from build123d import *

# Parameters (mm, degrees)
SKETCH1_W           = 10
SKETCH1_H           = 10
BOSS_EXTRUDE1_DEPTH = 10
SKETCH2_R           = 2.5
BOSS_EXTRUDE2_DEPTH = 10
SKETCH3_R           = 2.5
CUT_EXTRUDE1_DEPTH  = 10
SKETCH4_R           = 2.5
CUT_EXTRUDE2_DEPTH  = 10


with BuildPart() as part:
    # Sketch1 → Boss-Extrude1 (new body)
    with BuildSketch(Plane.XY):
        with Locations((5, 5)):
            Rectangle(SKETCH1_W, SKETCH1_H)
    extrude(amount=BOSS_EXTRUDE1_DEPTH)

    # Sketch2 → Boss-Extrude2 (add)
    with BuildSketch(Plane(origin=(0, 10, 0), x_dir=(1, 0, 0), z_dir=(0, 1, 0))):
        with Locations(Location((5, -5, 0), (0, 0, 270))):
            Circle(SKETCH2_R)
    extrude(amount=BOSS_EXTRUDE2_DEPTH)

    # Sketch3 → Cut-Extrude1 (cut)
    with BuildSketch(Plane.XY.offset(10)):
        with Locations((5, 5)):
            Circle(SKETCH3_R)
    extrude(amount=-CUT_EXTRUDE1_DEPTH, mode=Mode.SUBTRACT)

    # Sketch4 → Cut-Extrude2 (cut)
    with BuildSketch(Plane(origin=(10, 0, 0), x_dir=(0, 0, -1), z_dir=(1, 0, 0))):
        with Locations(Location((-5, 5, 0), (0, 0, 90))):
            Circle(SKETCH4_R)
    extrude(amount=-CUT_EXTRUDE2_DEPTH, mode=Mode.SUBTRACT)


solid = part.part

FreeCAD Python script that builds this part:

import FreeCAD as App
import Part
import Sketcher


def add_polygon(sketch, points):
    """Adds a closed chain of lines whose ends are joined by coincident constraints."""
    first, n = sketch.GeometryCount, len(points)
    for a, b in zip(points, points[1:] + points[:1]):
        sketch.addGeometry(Part.LineSegment(App.Vector(*a, 0), App.Vector(*b, 0)), False)
    for i in range(n):
        sketch.addConstraint(Sketcher.Constraint("Coincident", first + i, 2, first + (i + 1) % n, 1))

doc = App.newDocument("Part")
body = doc.addObject("PartDesign::Body", "Body")

# Sketch on XY plane
sketch1 = body.newObject("Sketcher::SketchObject", "Sketch")
sketch1.AttachmentSupport = (doc.getObject("XY_Plane"), [""])
sketch1.MapMode = "FlatFace"
add_polygon(sketch1, [(0, 10), (0, 0), (10, 0), (10, 10)])  # lines 0-3
sketch1.addConstraint([
    Sketcher.Constraint("Vertical", 0),
    Sketcher.Constraint("Horizontal", 1),
    Sketcher.Constraint("Vertical", 2),
    Sketcher.Constraint("Horizontal", 3),
    Sketcher.Constraint("Coincident", 0, 2, -1, 1),
    Sketcher.Constraint("Equal", 3, 0),
    Sketcher.Constraint("DistanceX", 1, 1, 1, 2, 10.0),
])
pad1 = body.newObject("PartDesign::Pad", "Pad")
pad1.Profile = sketch1
pad1.Length = 10

# Sketch on XZ plane
sketch2 = body.newObject("Sketcher::SketchObject", "Sketch001")
sketch2.AttachmentSupport = (doc.getObject("XZ_Plane"), [""])
sketch2.MapMode = "FlatFace"
sketch2.AttachmentOffset = App.Placement(App.Vector(0, 0, -10), App.Rotation())
sketch2.addGeometry(Part.Circle(App.Vector(5, 5, 0), App.Vector(0, 0, 1), 2.5), False)
sketch2.addConstraint([
    Sketcher.Constraint("Diameter", 0, 5.0),
    Sketcher.Constraint("DistanceX", -1, 1, 0, 3, 5.0),
    Sketcher.Constraint("DistanceY", -1, 1, 0, 3, 5.0),
])
pad2 = body.newObject("PartDesign::Pad", "Pad001")
pad2.Profile = sketch2
pad2.Length = 10
pad2.Reversed = True

# Sketch on XY plane
sketch3 = body.newObject("Sketcher::SketchObject", "Sketch002")
sketch3.AttachmentSupport = (doc.getObject("XY_Plane"), [""])
sketch3.MapMode = "FlatFace"
sketch3.AttachmentOffset = App.Placement(App.Vector(0, 0, 10), App.Rotation())
sketch3.addGeometry(Part.Circle(App.Vector(5, 5, 0), App.Vector(0, 0, 1), 2.5), False)
sketch3.addConstraint([
    Sketcher.Constraint("Diameter", 0, 5.0),
    Sketcher.Constraint("DistanceX", -1, 1, 0, 3, 5.0),
    Sketcher.Constraint("DistanceY", -1, 1, 0, 3, 5.0),
])
pocket1 = body.newObject("PartDesign::Pocket", "Pocket")
pocket1.Profile = sketch3
pocket1.Length = 10

# Sketch on YZ plane
sketch4 = body.newObject("Sketcher::SketchObject", "Sketch003")
sketch4.AttachmentSupport = (doc.getObject("YZ_Plane"), [""])
sketch4.MapMode = "FlatFace"
sketch4.AttachmentOffset = App.Placement(App.Vector(0, 0, 10), App.Rotation())
sketch4.addGeometry(Part.Circle(App.Vector(5, 5, 0), App.Vector(0, 0, 1), 2.5), False)
sketch4.addConstraint([
    Sketcher.Constraint("Diameter", 0, 5.0),
    Sketcher.Constraint("DistanceX", -1, 1, 0, 3, 5.0),
    Sketcher.Constraint("DistanceY", -1, 1, 0, 3, 5.0),
])
pocket2 = body.newObject("PartDesign::Pocket", "Pocket001")
pocket2.Profile = sketch4
pocket2.Length = 10

doc.recompute()
